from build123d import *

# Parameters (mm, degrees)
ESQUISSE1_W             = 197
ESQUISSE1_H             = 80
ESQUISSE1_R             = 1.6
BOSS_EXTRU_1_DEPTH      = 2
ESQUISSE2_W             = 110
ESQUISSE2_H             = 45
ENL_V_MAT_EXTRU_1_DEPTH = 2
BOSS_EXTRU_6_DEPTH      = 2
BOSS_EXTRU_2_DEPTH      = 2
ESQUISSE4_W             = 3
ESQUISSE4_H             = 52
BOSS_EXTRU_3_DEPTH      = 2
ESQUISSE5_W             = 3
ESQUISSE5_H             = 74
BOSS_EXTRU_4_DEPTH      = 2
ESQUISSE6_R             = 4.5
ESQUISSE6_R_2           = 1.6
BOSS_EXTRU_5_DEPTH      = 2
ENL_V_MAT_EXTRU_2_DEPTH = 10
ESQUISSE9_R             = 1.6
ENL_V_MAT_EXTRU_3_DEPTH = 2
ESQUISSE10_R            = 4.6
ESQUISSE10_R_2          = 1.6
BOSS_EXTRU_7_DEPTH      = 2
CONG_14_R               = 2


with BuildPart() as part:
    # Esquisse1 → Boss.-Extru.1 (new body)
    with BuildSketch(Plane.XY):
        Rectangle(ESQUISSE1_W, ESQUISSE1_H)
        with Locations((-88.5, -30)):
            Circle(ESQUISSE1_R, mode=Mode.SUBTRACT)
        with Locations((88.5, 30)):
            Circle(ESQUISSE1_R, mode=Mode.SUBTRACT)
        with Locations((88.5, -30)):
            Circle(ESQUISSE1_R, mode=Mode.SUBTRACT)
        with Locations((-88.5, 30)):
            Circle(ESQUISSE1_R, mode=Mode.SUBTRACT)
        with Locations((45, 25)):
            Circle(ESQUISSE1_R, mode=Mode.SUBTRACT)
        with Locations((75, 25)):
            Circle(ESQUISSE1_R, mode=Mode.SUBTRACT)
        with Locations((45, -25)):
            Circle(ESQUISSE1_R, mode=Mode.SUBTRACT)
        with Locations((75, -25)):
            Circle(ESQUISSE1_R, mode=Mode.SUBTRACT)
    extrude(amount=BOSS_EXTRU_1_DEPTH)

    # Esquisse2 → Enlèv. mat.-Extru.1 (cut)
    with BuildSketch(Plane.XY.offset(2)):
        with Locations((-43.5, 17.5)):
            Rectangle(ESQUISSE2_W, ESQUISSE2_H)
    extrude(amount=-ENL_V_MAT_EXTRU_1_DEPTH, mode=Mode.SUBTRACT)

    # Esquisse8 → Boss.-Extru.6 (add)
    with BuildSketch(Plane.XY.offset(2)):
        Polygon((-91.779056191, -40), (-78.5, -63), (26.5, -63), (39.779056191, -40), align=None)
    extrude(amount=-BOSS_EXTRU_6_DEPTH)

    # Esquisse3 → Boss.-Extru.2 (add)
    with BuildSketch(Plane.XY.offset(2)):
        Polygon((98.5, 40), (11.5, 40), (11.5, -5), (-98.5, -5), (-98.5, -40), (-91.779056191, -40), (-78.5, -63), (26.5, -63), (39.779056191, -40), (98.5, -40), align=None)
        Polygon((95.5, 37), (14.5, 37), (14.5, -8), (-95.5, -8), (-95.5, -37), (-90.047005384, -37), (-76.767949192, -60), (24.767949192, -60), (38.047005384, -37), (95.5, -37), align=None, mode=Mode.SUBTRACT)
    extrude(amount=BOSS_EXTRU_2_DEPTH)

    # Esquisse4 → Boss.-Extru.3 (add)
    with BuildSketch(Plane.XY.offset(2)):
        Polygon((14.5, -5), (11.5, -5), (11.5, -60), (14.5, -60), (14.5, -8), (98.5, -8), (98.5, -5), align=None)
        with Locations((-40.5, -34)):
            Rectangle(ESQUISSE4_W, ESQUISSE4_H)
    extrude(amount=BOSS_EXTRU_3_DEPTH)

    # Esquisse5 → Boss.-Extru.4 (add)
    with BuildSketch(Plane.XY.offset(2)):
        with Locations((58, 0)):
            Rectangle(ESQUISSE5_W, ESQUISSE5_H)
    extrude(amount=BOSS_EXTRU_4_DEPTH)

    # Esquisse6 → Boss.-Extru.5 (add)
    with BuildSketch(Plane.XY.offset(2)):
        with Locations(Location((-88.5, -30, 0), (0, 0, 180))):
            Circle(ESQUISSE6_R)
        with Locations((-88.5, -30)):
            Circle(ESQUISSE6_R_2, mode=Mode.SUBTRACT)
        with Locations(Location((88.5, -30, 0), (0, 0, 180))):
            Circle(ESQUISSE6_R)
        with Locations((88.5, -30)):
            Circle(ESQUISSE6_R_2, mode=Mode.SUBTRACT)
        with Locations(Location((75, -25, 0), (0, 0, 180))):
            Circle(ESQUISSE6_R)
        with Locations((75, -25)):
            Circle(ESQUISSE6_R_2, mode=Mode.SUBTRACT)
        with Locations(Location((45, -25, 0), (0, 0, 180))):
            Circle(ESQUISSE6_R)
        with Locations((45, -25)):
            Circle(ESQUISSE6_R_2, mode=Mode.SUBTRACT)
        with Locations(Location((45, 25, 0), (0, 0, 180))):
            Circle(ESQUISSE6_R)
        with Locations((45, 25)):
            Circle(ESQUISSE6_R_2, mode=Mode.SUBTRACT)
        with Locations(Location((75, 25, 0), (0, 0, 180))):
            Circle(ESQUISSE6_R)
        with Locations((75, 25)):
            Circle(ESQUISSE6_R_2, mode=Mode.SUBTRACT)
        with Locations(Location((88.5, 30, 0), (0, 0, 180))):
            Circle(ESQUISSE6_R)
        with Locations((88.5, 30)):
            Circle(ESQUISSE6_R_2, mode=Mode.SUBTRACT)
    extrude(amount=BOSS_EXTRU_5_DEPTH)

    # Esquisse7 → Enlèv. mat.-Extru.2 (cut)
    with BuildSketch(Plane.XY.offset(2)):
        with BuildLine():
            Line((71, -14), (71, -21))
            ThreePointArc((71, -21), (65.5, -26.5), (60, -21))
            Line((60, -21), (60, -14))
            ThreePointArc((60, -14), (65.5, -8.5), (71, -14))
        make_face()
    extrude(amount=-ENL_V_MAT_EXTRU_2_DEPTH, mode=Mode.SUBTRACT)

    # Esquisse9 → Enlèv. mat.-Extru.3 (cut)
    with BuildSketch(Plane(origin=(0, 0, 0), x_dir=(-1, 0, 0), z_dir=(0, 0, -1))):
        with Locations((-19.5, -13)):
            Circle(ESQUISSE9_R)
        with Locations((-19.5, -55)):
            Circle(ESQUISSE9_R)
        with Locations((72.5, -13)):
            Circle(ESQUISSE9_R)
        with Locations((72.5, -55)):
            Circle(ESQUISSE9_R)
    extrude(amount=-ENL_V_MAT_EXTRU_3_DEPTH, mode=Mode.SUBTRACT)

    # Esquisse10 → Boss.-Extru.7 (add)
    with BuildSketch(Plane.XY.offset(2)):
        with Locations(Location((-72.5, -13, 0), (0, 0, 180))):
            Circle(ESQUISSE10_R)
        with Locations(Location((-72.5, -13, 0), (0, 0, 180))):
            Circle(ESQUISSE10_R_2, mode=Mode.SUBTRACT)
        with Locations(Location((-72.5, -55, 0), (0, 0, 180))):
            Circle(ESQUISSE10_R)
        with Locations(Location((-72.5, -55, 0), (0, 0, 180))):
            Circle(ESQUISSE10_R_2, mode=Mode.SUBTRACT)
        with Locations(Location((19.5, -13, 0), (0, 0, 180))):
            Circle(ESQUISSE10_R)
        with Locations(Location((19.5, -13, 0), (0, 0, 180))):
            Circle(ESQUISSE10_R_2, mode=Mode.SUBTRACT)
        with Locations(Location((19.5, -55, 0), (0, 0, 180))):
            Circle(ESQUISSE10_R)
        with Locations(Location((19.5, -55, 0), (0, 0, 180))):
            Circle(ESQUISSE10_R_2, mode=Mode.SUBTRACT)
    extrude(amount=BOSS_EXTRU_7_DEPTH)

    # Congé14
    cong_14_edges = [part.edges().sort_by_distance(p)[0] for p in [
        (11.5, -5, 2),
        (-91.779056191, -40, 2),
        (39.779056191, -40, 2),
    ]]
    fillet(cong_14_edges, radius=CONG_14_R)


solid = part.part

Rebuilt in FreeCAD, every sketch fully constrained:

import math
import FreeCAD as App
import Part
import Sketcher
Q = App.Units.Quantity


def edges_at(feature, points):
    """Names of the edges that pass closest to the given points."""
    edges = feature.Shape.Edges
    near = lambda p: min(range(len(edges)), key=lambda i: edges[i].distToShape(Part.Vertex(*p))[0])
    return sorted({f"Edge{near(p) + 1}" for p in points})


def add_polygon(sketch, points):
    """Adds a closed chain of lines whose ends are joined by coincident constraints."""
    first, n = sketch.GeometryCount, len(points)
    for a, b in zip(points, points[1:] + points[:1]):
        sketch.addGeometry(Part.LineSegment(App.Vector(*a, 0), App.Vector(*b, 0)), False)
    for i in range(n):
        sketch.addConstraint(Sketcher.Constraint("Coincident", first + i, 2, first + (i + 1) % n, 1))

doc = App.newDocument("Part")
params = doc.addObject("Spreadsheet::Sheet", "Params")
for row, (alias, value) in enumerate([
    ("sketch1_diameter", "3.2 mm"),
    ("sketch1_width", "197 mm"),
    ("sketch1_height", "80 mm"),
    ("pad1_length", "2 mm"),
    ("sketch2_width", "110 mm"),
    ("sketch2_height", "45 mm"),
    ("pocket1_length", "2 mm"),
    ("sketch3_width", "105 mm"),
    ("pad2_length", "2 mm"),
    ("sketch4_width", "87 mm"),
    ("sketch4_width2", "110 mm"),
    ("sketch4_width3", "105 mm"),
    ("sketch4_width4", "81 mm"),
    ("sketch4_height", "45 mm"),
    ("pad3_length", "2 mm"),
    ("sketch5_width", "3 mm"),
    ("sketch5_width2", "84 mm"),
    ("sketch5_height", "55 mm"),
    ("pad4_length", "2 mm"),
    ("sketch6_width", "3 mm"),
    ("sketch6_height", "74 mm"),
    ("pad5_length", "2 mm"),
    ("sketch7_diameter", "9 mm"),
    ("sketch7_diameter2", "3.2 mm"),
    ("pad6_length", "2 mm"),
    ("sketch8_radius", "5.5 mm"),
    ("sketch8_height", "7 mm"),
    ("pocket2_length", "10 mm"),
    ("sketch9_diameter", "3.2 mm"),
    ("pocket3_length", "2 mm"),
    ("sketch10_diameter", "9.2 mm"),
    ("sketch10_diameter2", "3.2 mm"),
    ("pad7_length", "2 mm"),
    ("fillet_radius", "2 mm"),
], start=1):
    params.set(f"A{row}", alias)
    params.set(f"B{row}", "=" + value)
    params.setAlias(f"B{row}", alias)

body = doc.addObject("PartDesign::Body", "Body")

sketch1 = doc.addObject("Sketcher::SketchObject", "Sketch")
body.addObject(sketch1)
sketch1.AttachmentSupport = (doc.XY_Plane, [""])
sketch1.MapMode = "FlatFace"
add_polygon(sketch1, [(-98.5, 40), (-98.5, -40), (98.5, -40), (98.5, 40)])
sketch1.addGeometry(Part.Circle(App.Vector(-88.5, -30, 0), App.Vector(0, 0, 1), 1.6), False)
sketch1.addGeometry(Part.Circle(App.Vector(45, -25, 0), App.Vector(0, 0, 1), 1.6), False)
sketch1.addGeometry(Part.Circle(App.Vector(88.5, -30, 0), App.Vector(0, 0, 1), 1.6), False)
sketch1.addGeometry(Part.Circle(App.Vector(75, -25, 0), App.Vector(0, 0, 1), 1.6), False)
sketch1.addGeometry(Part.Circle(App.Vector(-88.5, 30, 0), App.Vector(0, 0, 1), 1.6), False)
sketch1.addGeometry(Part.Circle(App.Vector(45, 25, 0), App.Vector(0, 0, 1), 1.6), False)
sketch1.addGeometry(Part.Circle(App.Vector(75, 25, 0), App.Vector(0, 0, 1), 1.6), False)
sketch1.addGeometry(Part.Circle(App.Vector(88.5, 30, 0), App.Vector(0, 0, 1), 1.6), False)
sketch1.addConstraint(Sketcher.Constraint("Vertical", 0))
sketch1.addConstraint(Sketcher.Constraint("Horizontal", 1))
sketch1.addConstraint(Sketcher.Constraint("Vertical", 2))
sketch1.addConstraint(Sketcher.Constraint("Horizontal", 3))
sketch1.addConstraint(Sketcher.Constraint("Equal", 4, 5))
sketch1.addConstraint(Sketcher.Constraint("Equal", 5, 6))
sketch1.addConstraint(Sketcher.Constraint("Equal", 6, 7))
sketch1.addConstraint(Sketcher.Constraint("Equal", 7, 8))
sketch1.addConstraint(Sketcher.Constraint("Equal", 8, 9))
sketch1.addConstraint(Sketcher.Constraint("Equal", 9, 10))
sketch1.addConstraint(Sketcher.Constraint("Equal", 10, 11))
sketch1.addConstraint(Sketcher.Constraint("Symmetric", 6, 3, 8, 3, -1, 1))
sketch1.addConstraint(Sketcher.Constraint("Symmetric", 4, 3, 11, 3, -1, 1))
sketch1.addConstraint(Sketcher.Constraint("Symmetric", 0, 2, 2, 2, -1, 1))
sketch1.addConstraint(Sketcher.Constraint("Symmetric", 4, 3, 6, 3, -2))
sketch1.addConstraint(Sketcher.Constraint("Symmetric", 5, 3, 9, 3, -1))
sketch1.addConstraint(Sketcher.Constraint("Symmetric", 7, 3, 10, 3, -1))
sketch1.addConstraint(Sketcher.Constraint("Horizontal", 5, 3, 7, 3))
sketch1.addConstraint(Sketcher.Constraint("Diameter", 4, 3.2))
sketch1.addConstraint(Sketcher.Constraint("DistanceX", 1, 1, 1, 2, 197.0))
sketch1.addConstraint(Sketcher.Constraint("DistanceY", 0, 2, 0, 1, 80.0))
sketch1.addConstraint(Sketcher.Constraint("DistanceY", 4, 3, -1, 1, 30.0))
sketch1.addConstraint(Sketcher.Constraint("DistanceX", -1, 1, 5, 3, 45.0))
sketch1.addConstraint(Sketcher.Constraint("DistanceY", 5, 3, -1, 1, 25.0))
sketch1.addConstraint(Sketcher.Constraint("DistanceX", -1, 1, 7, 3, 75.0))
sketch1.addConstraint(Sketcher.Constraint("DistanceX", 4, 3, 6, 3, 177.0))
sketch1.setExpression("Constraints[22]", "Params.sketch1_diameter")
sketch1.setExpression("Constraints[23]", "Params.sketch1_width")
sketch1.setExpression("Constraints[24]", "Params.sketch1_height")
pad1 = doc.addObject("PartDesign::Pad", "Pad")
body.addObject(pad1)
pad1.Profile = sketch1
pad1.setExpression("Length", "Params.pad1_length")

sketch2 = doc.addObject("Sketcher::SketchObject", "Sketch001")
body.addObject(sketch2)
sketch2.AttachmentSupport = (doc.XY_Plane, [""])
sketch2.MapMode = "FlatFace"
sketch2.AttachmentOffset = App.Placement(App.Vector(0, 0, 2), App.Rotation())
add_polygon(sketch2, [(-98, 40), (-98, -5), (12, -5), (12, 40)])
sketch2.addConstraint(Sketcher.Constraint("Vertical", 0))
sketch2.addConstraint(Sketcher.Constraint("Horizontal", 1))
sketch2.addConstraint(Sketcher.Constraint("Vertical", 2))
sketch2.addConstraint(Sketcher.Constraint("Horizontal", 3))
sketch2.addConstraint(Sketcher.Constraint("DistanceX", 1, 1, 1, 2, 110.0))
sketch2.addConstraint(Sketcher.Constraint("DistanceY", 0, 2, 0, 1, 45.0))
sketch2.addConstraint(Sketcher.Constraint("DistanceY", 0, 2, -1, 1, 5.0))
sketch2.addConstraint(Sketcher.Constraint("DistanceX", 0, 2, -1, 1, 98.5))
sketch2.setExpression("Constraints[8]", "Params.sketch2_width")
sketch2.setExpression("Constraints[9]", "Params.sketch2_height")
pocket1 = doc.addObject("PartDesign::Pocket", "Pocket")
body.addObject(pocket1)
pocket1.Profile = sketch2
pocket1.setExpression("Length", "Params.pocket1_length")

sketch3 = doc.addObject("Sketcher::SketchObject", "Sketch002")
body.addObject(sketch3)
sketch3.AttachmentSupport = (doc.XY_Plane, [""])
sketch3.MapMode = "FlatFace"
sketch3.AttachmentOffset = App.Placement(App.Vector(0, 0, 2), App.Rotation())
add_polygon(sketch3, [(-92, -40), (-78, -63), (26, -63), (40, -40)])
sketch3.addConstraint(Sketcher.Constraint("Horizontal", 1))
sketch3.addConstraint(Sketcher.Constraint("Horizontal", 3))
sketch3.addConstraint(Sketcher.Constraint("Equal", 0, 2))
sketch3.addConstraint(Sketcher.Constraint("DistanceX", 1, 1, 1, 2, 105.0))
sketch3.addConstraint(Sketcher.Constraint("Angle", 0, Q("-60 deg")))
sketch3.addConstraint(Sketcher.Constraint("DistanceY", 0, 2, -1, 1, 63.0))
sketch3.addConstraint(Sketcher.Constraint("DistanceY", 2, 2, -1, 1, 40.0))
sketch3.addConstraint(Sketcher.Constraint("DistanceX", 0, 2, -1, 1, 78.5))
sketch3.setExpression("Constraints[7]", "Params.sketch3_width")
pad2 = doc.addObject("PartDesign::Pad", "Pad001")
body.addObject(pad2)
pad2.Profile = sketch3
pad2.setExpression("Length", "Params.pad2_length")
pad2.Reversed = True

sketch4 = doc.addObject("Sketcher::SketchObject", "Sketch003")
body.addObject(sketch4)
sketch4.AttachmentSupport = (doc.XY_Plane, [""])
sketch4.MapMode = "FlatFace"
sketch4.AttachmentOffset = App.Placement(App.Vector(0, 0, 2), App.Rotation())
add_polygon(sketch4, [(98, 40), (12, 40), (12, -5), (-98, -5), (-98, -40), (-92, -40), (-78, -63), (26, -63), (40, -40), (98, -40)])
add_polygon(sketch4, [(14, 37), (96, 37), (96, -37), (38, -37), (25, -60), (-77, -60), (-90, -37), (-96, -37), (-96, -8), (14, -8)])
sketch4.addConstraint(Sketcher.Constraint("Horizontal", 0))
sketch4.addConstraint(Sketcher.Constraint("Vertical", 1))
sketch4.addConstraint(Sketcher.Constraint("Horizontal", 2))
sketch4.addConstraint(Sketcher.Constraint("Vertical", 3))
sketch4.addConstraint(Sketcher.Constraint("Horizontal", 4))
sketch4.addConstraint(Sketcher.Constraint("Horizontal", 6))
sketch4.addConstraint(Sketcher.Constraint("Horizontal", 8))
sketch4.addConstraint(Sketcher.Constraint("Vertical", 9))
sketch4.addConstraint(Sketcher.Constraint("Horizontal", 10))
sketch4.addConstraint(Sketcher.Constraint("Vertical", 11))
sketch4.addConstraint(Sketcher.Constraint("Horizontal", 12))
sketch4.addConstraint(Sketcher.Constraint("Horizontal", 14))
sketch4.addConstraint(Sketcher.Constraint("Horizontal", 16))
sketch4.addConstraint(Sketcher.Constraint("Vertical", 17))
sketch4.addConstraint(Sketcher.Constraint("Horizontal", 18))
sketch4.addConstraint(Sketcher.Constraint("Vertical", 19))
sketch4.addConstraint(Sketcher.Constraint("Symmetric", 3, 2, 9, 2, -1, 1))
sketch4.addConstraint(Sketcher.Constraint("Symmetric", 10, 2, 16, 2, -1, 1))
sketch4.addConstraint(Sketcher.Constraint("Parallel", 7, 13))
sketch4.addConstraint(Sketcher.Constraint("Parallel", 5, 15))
sketch4.addConstraint(Sketcher.Constraint("Horizontal", 4, 2, 7, 2))
sketch4.addConstraint(Sketcher.Constraint("Horizontal", 12, 2, 15, 2))
sketch4.addConstraint(Sketcher.Constraint("Equal", 2, 18))
sketch4.addConstraint(Sketcher.Constraint("Equal", 1, 19))
sketch4.addConstraint(Sketcher.Constraint("Equal", 5, 7))
sketch4.addConstraint(Sketcher.Constraint("Equal", 7, 13))
sketch4.addConstraint(Sketcher.Constraint("DistanceX", 0, 2, 0, 1, 87.0))
sketch4.addConstraint(Sketcher.Constraint("DistanceX", 2, 2, 2, 1, 110.0))
sketch4.addConstraint(Sketcher.Constraint("DistanceX", 6, 1, 6, 2, 105.0))
sketch4.addConstraint(Sketcher.Constraint("DistanceX", 10, 1, 10, 2, 81.0))
sketch4.addConstraint(Sketcher.Constraint("DistanceY", 1, 2, 1, 1, 45.0))
sketch4.addConstraint(Sketcher.Constraint("DistanceY", 3, 2, 3, 1, 35.0))
sketch4.addConstraint(Sketcher.Constraint("DistanceY", 11, 2, 11, 1, 74.0))
sketch4.addConstraint(Sketcher.Constraint("Angle", 5, Q("-60 deg")))
sketch4.addConstraint(Sketcher.Constraint("DistanceY", 5, 2, -1, 1, 63.0))
sketch4.addConstraint(Sketcher.Constraint("DistanceX", 3, 2, 5, 2, 20.0))
sketch4.addConstraint(Sketcher.Constraint("DistanceX", 14, 2, 14, 1, 101.535898))
sketch4.addConstraint(Sketcher.Constraint("DistanceX", 12, 2, 12, 1, 57.452995))
sketch4.setExpression("Constraints[46]", "Params.sketch4_width")
sketch4.setExpression("Constraints[47]", "Params.sketch4_width2")
sketch4.setExpression("Constraints[48]", "Params.sketch4_width3")
sketch4.setExpression("Constraints[49]", "Params.sketch4_width4")
sketch4.setExpression("Constraints[50]", "Params.sketch4_height")
pad3 = doc.addObject("PartDesign::Pad", "Pad002")
body.addObject(pad3)
pad3.Profile = sketch4
pad3.setExpression("Length", "Params.pad3_length")

sketch5 = doc.addObject("Sketcher::SketchObject", "Sketch004")
body.addObject(sketch5)
sketch5.AttachmentSupport = (doc.XY_Plane, [""])
sketch5.MapMode = "FlatFace"
sketch5.AttachmentOffset = App.Placement(App.Vector(0, 0, 2), App.Rotation())
add_polygon(sketch5, [(11.5, -5), (11.5, -60), (14.5, -60), (14.5, -8), (98.5, -8), (98.5, -5)])
add_polygon(sketch5, [(-42, -8), (-42, -60), (-39, -60), (-39, -8)])
sketch5.addConstraint(Sketcher.Constraint("Vertical", 0))
sketch5.addConstraint(Sketcher.Constraint("Horizontal", 1))
sketch5.addConstraint(Sketcher.Constraint("Vertical", 2))
sketch5.addConstraint(Sketcher.Constraint("Horizontal", 3))
sketch5.addConstraint(Sketcher.Constraint("Vertical", 4))
sketch5.addConstraint(Sketcher.Constraint("Horizontal", 5))
sketch5.addConstraint(Sketcher.Constraint("Vertical", 6))
sketch5.addConstraint(Sketcher.Constraint("Horizontal", 7))
sketch5.addConstraint(Sketcher.Constraint("Vertical", 8))
sketch5.addConstraint(Sketcher.Constraint("Horizontal", 9))
sketch5.addConstraint(Sketcher.Constraint("Horizontal", 1, 2, 6, 2))
sketch5.addConstraint(Sketcher.Constraint("Horizontal", 3, 2, 8, 2))
sketch5.addConstraint(Sketcher.Constraint("Equal", 1, 7))
sketch5.addConstraint(Sketcher.Constraint("Equal", 9, 4))
sketch5.addConstraint(Sketcher.Constraint("DistanceX", 1, 1, 1, 2, 3.0))
sketch5.addConstraint(Sketcher.Constraint("DistanceX", 3, 1, 3, 2, 84.0))
sketch5.addConstraint(Sketcher.Constraint("DistanceY", 0, 2, 0, 1, 55.0))
sketch5.addConstraint(Sketcher.Constraint("DistanceY", 0, 2, -1, 1, 60.0))
sketch5.addConstraint(Sketcher.Constraint("DistanceX", 6, 2, -1, 1, 42.0))
sketch5.addConstraint(Sketcher.Constraint("DistanceX", -1, 1, 0, 2, 11.5))
sketch5.setExpression("Constraints[24]", "Params.sketch5_width")
sketch5.setExpression("Constraints[25]", "Params.sketch5_width2")
sketch5.setExpression("Constraints[26]", "Params.sketch5_height")
pad4 = doc.addObject("PartDesign::Pad", "Pad003")
body.addObject(pad4)
pad4.Profile = sketch5
pad4.setExpression("Length", "Params.pad4_length")

sketch6 = doc.addObject("Sketcher::SketchObject", "Sketch005")
body.addObject(sketch6)
sketch6.AttachmentSupport = (doc.XY_Plane, [""])
sketch6.MapMode = "FlatFace"
sketch6.AttachmentOffset = App.Placement(App.Vector(0, 0, 2), App.Rotation())
add_polygon(sketch6, [(56.5, 37), (56.5, -37), (59.5, -37), (59.5, 37)])
sketch6.addConstraint(Sketcher.Constraint("Vertical", 0))
sketch6.addConstraint(Sketcher.Constraint("Horizontal", 1))
sketch6.addConstraint(Sketcher.Constraint("Vertical", 2))
sketch6.addConstraint(Sketcher.Constraint("Horizontal", 3))
sketch6.addConstraint(Sketcher.Constraint("DistanceX", 1, 1, 1, 2, 3.0))
sketch6.addConstraint(Sketcher.Constraint("DistanceY", 0, 2, 0, 1, 74.0))
sketch6.addConstraint(Sketcher.Constraint("DistanceY", 0, 2, -1, 1, 37.0))
sketch6.addConstraint(Sketcher.Constraint("DistanceX", -1, 1, 0, 2, 56.5))
sketch6.setExpression("Constraints[8]", "Params.sketch6_width")
sketch6.setExpression("Constraints[9]", "Params.sketch6_height")
pad5 = doc.addObject("PartDesign::Pad", "Pad004")
body.addObject(pad5)
pad5.Profile = sketch6
pad5.setExpression("Length", "Params.pad5_length")

sketch7 = doc.addObject("Sketcher::SketchObject", "Sketch006")
body.addObject(sketch7)
sketch7.AttachmentSupport = (doc.XY_Plane, [""])
sketch7.MapMode = "FlatFace"
sketch7.AttachmentOffset = App.Placement(App.Vector(0, 0, 2), App.Rotation())
sketch7.addGeometry(Part.Circle(App.Vector(-88.5, -30, 0), App.Vector(0, 0, 1), 4.5), False)
sketch7.addGeometry(Part.Circle(App.Vector(-88.5, -30, 0), App.Vector(0, 0, 1), 1.6), False)
sketch7.addGeometry(Part.Circle(App.Vector(88.5, -30, 0), App.Vector(0, 0, 1), 4.5), False)
sketch7.addGeometry(Part.Circle(App.Vector(88.5, -30, 0), App.Vector(0, 0, 1), 1.6), False)
sketch7.addGeometry(Part.Circle(App.Vector(75, -25, 0), App.Vector(0, 0, 1), 4.5), False)
sketch7.addGeometry(Part.Circle(App.Vector(75, -25, 0), App.Vector(0, 0, 1), 1.6), False)
sketch7.addGeometry(Part.Circle(App.Vector(45, -25, 0), App.Vector(0, 0, 1), 4.5), False)
sketch7.addGeometry(Part.Circle(App.Vector(45, -25, 0), App.Vector(0, 0, 1), 1.6), False)
sketch7.addGeometry(Part.Circle(App.Vector(45, 25, 0), App.Vector(0, 0, 1), 4.5), False)
sketch7.addGeometry(Part.Circle(App.Vector(45, 25, 0), App.Vector(0, 0, 1), 1.6), False)
sketch7.addGeometry(Part.Circle(App.Vector(75, 25, 0), App.Vector(0, 0, 1), 4.5), False)
sketch7.addGeometry(Part.Circle(App.Vector(75, 25, 0), App.Vector(0, 0, 1), 1.6), False)
sketch7.addGeometry(Part.Circle(App.Vector(88.5, 30, 0), App.Vector(0, 0, 1), 4.5), False)
sketch7.addGeometry(Part.Circle(App.Vector(88.5, 30, 0), App.Vector(0, 0, 1), 1.6), False)
sketch7.addConstraint(Sketcher.Constraint("Coincident", 1, 3, 0, 3))
sketch7.addConstraint(Sketcher.Constraint("Coincident", 3, 3, 2, 3))
sketch7.addConstraint(Sketcher.Constraint("Coincident", 5, 3, 4, 3))
sketch7.addConstraint(Sketcher.Constraint("Coincident", 7, 3, 6, 3))
sketch7.addConstraint(Sketcher.Constraint("Coincident", 9, 3, 8, 3))
sketch7.addConstraint(Sketcher.Constraint("Coincident", 11, 3, 10, 3))
sketch7.addConstraint(Sketcher.Constraint("Coincident", 13, 3, 12, 3))
sketch7.addConstraint(Sketcher.Constraint("Equal", 0, 2))
sketch7.addConstraint(Sketcher.Constraint("Equal", 1, 3))
sketch7.addConstraint(Sketcher.Constraint("Equal", 2, 4))
sketch7.addConstraint(Sketcher.Constraint("Equal", 3, 5))
sketch7.addConstraint(Sketcher.Constraint("Equal", 4, 6))
sketch7.addConstraint(Sketcher.Constraint("Equal", 5, 7))
sketch7.addConstraint(Sketcher.Constraint("Equal", 6, 8))
sketch7.addConstraint(Sketcher.Constraint("Equal", 7, 9))
sketch7.addConstraint(Sketcher.Constraint("Equal", 8, 10))
sketch7.addConstraint(Sketcher.Constraint("Equal", 9, 11))
sketch7.addConstraint(Sketcher.Constraint("Equal", 10, 12))
sketch7.addConstraint(Sketcher.Constraint("Equal", 11, 13))
sketch7.addConstraint(Sketcher.Constraint("Symmetric", 0, 3, 12, 3, -1, 1))
sketch7.addConstraint(Sketcher.Constraint("Symmetric", 0, 3, 2, 3, -2))
sketch7.addConstraint(Sketcher.Constraint("Symmetric", 6, 3, 8, 3, -1))
sketch7.addConstraint(Sketcher.Constraint("Symmetric", 4, 3, 10, 3, -1))
sketch7.addConstraint(Sketcher.Constraint("Horizontal", 5, 3, 6, 3))
sketch7.addConstraint(Sketcher.Constraint("Diameter", 0, 9.0))
sketch7.addConstraint(Sketcher.Constraint("Diameter", 1, 3.2))
sketch7.addConstraint(Sketcher.Constraint("DistanceY", 0, 3, -1, 1, 30.0))
sketch7.addConstraint(Sketcher.Constraint("DistanceX", -1, 1, 4, 3, 75.0))
sketch7.addConstraint(Sketcher.Constraint("DistanceY", 4, 3, -1, 1, 25.0))
sketch7.addConstraint(Sketcher.Constraint("DistanceX", -1, 1, 6, 3, 45.0))
sketch7.addConstraint(Sketcher.Constraint("DistanceX", 0, 3, 2, 3, 177.0))
sketch7.setExpression("Constraints[24]", "Params.sketch7_diameter")
sketch7.setExpression("Constraints[25]", "Params.sketch7_diameter2")
pad6 = doc.addObject("PartDesign::Pad", "Pad005")
body.addObject(pad6)
pad6.Profile = sketch7
pad6.setExpression("Length", "Params.pad6_length")

sketch8 = doc.addObject("Sketcher::SketchObject", "Sketch007")
body.addObject(sketch8)
sketch8.AttachmentSupport = (doc.XY_Plane, [""])
sketch8.MapMode = "FlatFace"
sketch8.AttachmentOffset = App.Placement(App.Vector(0, 0, 2), App.Rotation())
sketch8.addGeometry(Part.LineSegment(App.Vector(71, -21, 0), App.Vector(71, -14, 0)), False)
sketch8.addGeometry(Part.ArcOfCircle(Part.Circle(App.Vector(66, -14, 0), App.Vector(0, 0, 1), 6), math.radians(0), math.radians(180)), False)
sketch8.addGeometry(Part.LineSegment(App.Vector(60, -14, 0), App.Vector(60, -21, 0)), False)
sketch8.addGeometry(Part.ArcOfCircle(Part.Circle(App.Vector(66, -21, 0), App.Vector(0, 0, 1), 6), math.radians(180), math.radians(360)), False)
sketch8.addConstraint(Sketcher.Constraint("Tangent", 0, 2, 1, 1))
sketch8.addConstraint(Sketcher.Constraint("Tangent", 1, 2, 2, 1))
sketch8.addConstraint(Sketcher.Constraint("Tangent", 2, 2, 3, 1))
sketch8.addConstraint(Sketcher.Constraint("Tangent", 3, 2, 0, 1))
sketch8.addConstraint(Sketcher.Constraint("Vertical", 0))
sketch8.addConstraint(Sketcher.Constraint("Vertical", 2))
sketch8.addConstraint(Sketcher.Constraint("Radius", 1, 5.5))
sketch8.addConstraint(Sketcher.Constraint("DistanceY", 0, 1, 0, 2, 7.0))
sketch8.addConstraint(Sketcher.Constraint("DistanceY", 1, 3, -1, 1, 14.0))
sketch8.addConstraint(Sketcher.Constraint("DistanceX", -1, 1, 0, 2, 71.0))
sketch8.setExpression("Constraints[6]", "Params.sketch8_radius")
sketch8.setExpression("Constraints[7]", "Params.sketch8_height")
pocket2 = doc.addObject("PartDesign::Pocket", "Pocket001")
body.addObject(pocket2)
pocket2.Profile = sketch8
pocket2.setExpression("Length", "Params.pocket2_length")

sketch9 = doc.addObject("Sketcher::SketchObject", "Sketch008")
body.addObject(sketch9)
sketch9.AttachmentSupport = (doc.XY_Plane, [""])
sketch9.MapMode = "FlatFace"
sketch9.addGeometry(Part.Circle(App.Vector(19.5, -13, 0), App.Vector(0, 0, 1), 1.6), False)
sketch9.addGeometry(Part.Circle(App.Vector(19.5, -55, 0), App.Vector(0, 0, 1), 1.6), False)
sketch9.addGeometry(Part.Circle(App.Vector(-72.5, -13, 0), App.Vector(0, 0, 1), 1.6), False)
sketch9.addGeometry(Part.Circle(App.Vector(-72.5, -55, 0), App.Vector(0, 0, 1), 1.6), False)
sketch9.addConstraint(Sketcher.Constraint("Equal", 0, 1))
sketch9.addConstraint(Sketcher.Constraint("Equal", 1, 2))
sketch9.addConstraint(Sketcher.Constraint("Equal", 2, 3))
sketch9.addConstraint(Sketcher.Constraint("Horizontal", 0, 3, 2, 3))
sketch9.addConstraint(Sketcher.Constraint("Horizontal", 1, 3, 3, 3))
sketch9.addConstraint(Sketcher.Constraint("Vertical", 0, 3, 1, 3))
sketch9.addConstraint(Sketcher.Constraint("Vertical", 2, 3, 3, 3))
sketch9.addConstraint(Sketcher.Constraint("Diameter", 0, 3.2))
sketch9.addConstraint(Sketcher.Constraint("DistanceY", 0, 3, -1, 1, 13.0))
sketch9.addConstraint(Sketcher.Constraint("DistanceY", 1, 3, -1, 1, 55.0))
sketch9.addConstraint(Sketcher.Constraint("DistanceX", 2, 3, 0, 3, 92.0))
sketch9.addConstraint(Sketcher.Constraint("DistanceX", -1, 1, 0, 3, 19.5))
sketch9.setExpression("Constraints[7]", "Params.sketch9_diameter")
pocket3 = doc.addObject("PartDesign::Pocket", "Pocket002")
body.addObject(pocket3)
pocket3.Profile = sketch9
pocket3.setExpression("Length", "Params.pocket3_length")
pocket3.Reversed = True

sketch10 = doc.addObject("Sketcher::SketchObject", "Sketch009")
body.addObject(sketch10)
sketch10.AttachmentSupport = (doc.XY_Plane, [""])
sketch10.MapMode = "FlatFace"
sketch10.AttachmentOffset = App.Placement(App.Vector(0, 0, 2), App.Rotation())
sketch10.addGeometry(Part.Circle(App.Vector(-72.5, -13, 0), App.Vector(0, 0, 1), 4.6), False)
sketch10.addGeometry(Part.Circle(App.Vector(-72.5, -13, 0), App.Vector(0, 0, 1), 1.6), False)
sketch10.addGeometry(Part.Circle(App.Vector(-72.5, -55, 0), App.Vector(0, 0, 1), 4.6), False)
sketch10.addGeometry(Part.Circle(App.Vector(-72.5, -55, 0), App.Vector(0, 0, 1), 1.6), False)
sketch10.addGeometry(Part.Circle(App.Vector(19.5, -13, 0), App.Vector(0, 0, 1), 4.6), False)
sketch10.addGeometry(Part.Circle(App.Vector(19.5, -13, 0), App.Vector(0, 0, 1), 1.6), False)
sketch10.addGeometry(Part.Circle(App.Vector(19.5, -55, 0), App.Vector(0, 0, 1), 4.6), False)
sketch10.addGeometry(Part.Circle(App.Vector(19.5, -55, 0), App.Vector(0, 0, 1), 1.6), False)
sketch10.addConstraint(Sketcher.Constraint("Coincident", 1, 3, 0, 3))
sketch10.addConstraint(Sketcher.Constraint("Coincident", 3, 3, 2, 3))
sketch10.addConstraint(Sketcher.Constraint("Coincident", 5, 3, 4, 3))
sketch10.addConstraint(Sketcher.Constraint("Coincident", 7, 3, 6, 3))
sketch10.addConstraint(Sketcher.Constraint("Equal", 0, 2))
sketch10.addConstraint(Sketcher.Constraint("Equal", 1, 3))
sketch10.addConstraint(Sketcher.Constraint("Equal", 2, 4))
sketch10.addConstraint(Sketcher.Constraint("Equal", 3, 5))
sketch10.addConstraint(Sketcher.Constraint("Equal", 4, 6))
sketch10.addConstraint(Sketcher.Constraint("Equal", 5, 7))
sketch10.addConstraint(Sketcher.Constraint("Horizontal", 1, 3, 4, 3))
sketch10.addConstraint(Sketcher.Constraint("Horizontal", 3, 3, 6, 3))
sketch10.addConstraint(Sketcher.Constraint("Vertical", 1, 3, 2, 3))
sketch10.addConstraint(Sketcher.Constraint("Vertical", 5, 3, 6, 3))
sketch10.addConstraint(Sketcher.Constraint("Diameter", 0, 9.2))
sketch10.addConstraint(Sketcher.Constraint("Diameter", 1, 3.2))
sketch10.addConstraint(Sketcher.Constraint("DistanceY", 0, 3, -1, 1, 13.0))
sketch10.addConstraint(Sketcher.Constraint("DistanceY", 2, 3, -1, 1, 55.0))
sketch10.addConstraint(Sketcher.Constraint("DistanceX", 0, 3, 4, 3, 92.0))
sketch10.addConstraint(Sketcher.Constraint("DistanceX", 0, 3, -1, 1, 72.5))
sketch10.setExpression("Constraints[14]", "Params.sketch10_diameter")
sketch10.setExpression("Constraints[15]", "Params.sketch10_diameter2")
pad7 = doc.addObject("PartDesign::Pad", "Pad006")
body.addObject(pad7)
pad7.Profile = sketch10
pad7.setExpression("Length", "Params.pad7_length")
doc.recompute()

fillet = doc.addObject("PartDesign::Fillet", "Fillet")
body.addObject(fillet)
fillet.Base = (pad7, edges_at(pad7, [(11.5, -5, 2), (-91.779, -40, 2), (39.779, -40, 2)]))
fillet.setExpression("Radius", "Params.fillet_radius")

doc.recompute()
